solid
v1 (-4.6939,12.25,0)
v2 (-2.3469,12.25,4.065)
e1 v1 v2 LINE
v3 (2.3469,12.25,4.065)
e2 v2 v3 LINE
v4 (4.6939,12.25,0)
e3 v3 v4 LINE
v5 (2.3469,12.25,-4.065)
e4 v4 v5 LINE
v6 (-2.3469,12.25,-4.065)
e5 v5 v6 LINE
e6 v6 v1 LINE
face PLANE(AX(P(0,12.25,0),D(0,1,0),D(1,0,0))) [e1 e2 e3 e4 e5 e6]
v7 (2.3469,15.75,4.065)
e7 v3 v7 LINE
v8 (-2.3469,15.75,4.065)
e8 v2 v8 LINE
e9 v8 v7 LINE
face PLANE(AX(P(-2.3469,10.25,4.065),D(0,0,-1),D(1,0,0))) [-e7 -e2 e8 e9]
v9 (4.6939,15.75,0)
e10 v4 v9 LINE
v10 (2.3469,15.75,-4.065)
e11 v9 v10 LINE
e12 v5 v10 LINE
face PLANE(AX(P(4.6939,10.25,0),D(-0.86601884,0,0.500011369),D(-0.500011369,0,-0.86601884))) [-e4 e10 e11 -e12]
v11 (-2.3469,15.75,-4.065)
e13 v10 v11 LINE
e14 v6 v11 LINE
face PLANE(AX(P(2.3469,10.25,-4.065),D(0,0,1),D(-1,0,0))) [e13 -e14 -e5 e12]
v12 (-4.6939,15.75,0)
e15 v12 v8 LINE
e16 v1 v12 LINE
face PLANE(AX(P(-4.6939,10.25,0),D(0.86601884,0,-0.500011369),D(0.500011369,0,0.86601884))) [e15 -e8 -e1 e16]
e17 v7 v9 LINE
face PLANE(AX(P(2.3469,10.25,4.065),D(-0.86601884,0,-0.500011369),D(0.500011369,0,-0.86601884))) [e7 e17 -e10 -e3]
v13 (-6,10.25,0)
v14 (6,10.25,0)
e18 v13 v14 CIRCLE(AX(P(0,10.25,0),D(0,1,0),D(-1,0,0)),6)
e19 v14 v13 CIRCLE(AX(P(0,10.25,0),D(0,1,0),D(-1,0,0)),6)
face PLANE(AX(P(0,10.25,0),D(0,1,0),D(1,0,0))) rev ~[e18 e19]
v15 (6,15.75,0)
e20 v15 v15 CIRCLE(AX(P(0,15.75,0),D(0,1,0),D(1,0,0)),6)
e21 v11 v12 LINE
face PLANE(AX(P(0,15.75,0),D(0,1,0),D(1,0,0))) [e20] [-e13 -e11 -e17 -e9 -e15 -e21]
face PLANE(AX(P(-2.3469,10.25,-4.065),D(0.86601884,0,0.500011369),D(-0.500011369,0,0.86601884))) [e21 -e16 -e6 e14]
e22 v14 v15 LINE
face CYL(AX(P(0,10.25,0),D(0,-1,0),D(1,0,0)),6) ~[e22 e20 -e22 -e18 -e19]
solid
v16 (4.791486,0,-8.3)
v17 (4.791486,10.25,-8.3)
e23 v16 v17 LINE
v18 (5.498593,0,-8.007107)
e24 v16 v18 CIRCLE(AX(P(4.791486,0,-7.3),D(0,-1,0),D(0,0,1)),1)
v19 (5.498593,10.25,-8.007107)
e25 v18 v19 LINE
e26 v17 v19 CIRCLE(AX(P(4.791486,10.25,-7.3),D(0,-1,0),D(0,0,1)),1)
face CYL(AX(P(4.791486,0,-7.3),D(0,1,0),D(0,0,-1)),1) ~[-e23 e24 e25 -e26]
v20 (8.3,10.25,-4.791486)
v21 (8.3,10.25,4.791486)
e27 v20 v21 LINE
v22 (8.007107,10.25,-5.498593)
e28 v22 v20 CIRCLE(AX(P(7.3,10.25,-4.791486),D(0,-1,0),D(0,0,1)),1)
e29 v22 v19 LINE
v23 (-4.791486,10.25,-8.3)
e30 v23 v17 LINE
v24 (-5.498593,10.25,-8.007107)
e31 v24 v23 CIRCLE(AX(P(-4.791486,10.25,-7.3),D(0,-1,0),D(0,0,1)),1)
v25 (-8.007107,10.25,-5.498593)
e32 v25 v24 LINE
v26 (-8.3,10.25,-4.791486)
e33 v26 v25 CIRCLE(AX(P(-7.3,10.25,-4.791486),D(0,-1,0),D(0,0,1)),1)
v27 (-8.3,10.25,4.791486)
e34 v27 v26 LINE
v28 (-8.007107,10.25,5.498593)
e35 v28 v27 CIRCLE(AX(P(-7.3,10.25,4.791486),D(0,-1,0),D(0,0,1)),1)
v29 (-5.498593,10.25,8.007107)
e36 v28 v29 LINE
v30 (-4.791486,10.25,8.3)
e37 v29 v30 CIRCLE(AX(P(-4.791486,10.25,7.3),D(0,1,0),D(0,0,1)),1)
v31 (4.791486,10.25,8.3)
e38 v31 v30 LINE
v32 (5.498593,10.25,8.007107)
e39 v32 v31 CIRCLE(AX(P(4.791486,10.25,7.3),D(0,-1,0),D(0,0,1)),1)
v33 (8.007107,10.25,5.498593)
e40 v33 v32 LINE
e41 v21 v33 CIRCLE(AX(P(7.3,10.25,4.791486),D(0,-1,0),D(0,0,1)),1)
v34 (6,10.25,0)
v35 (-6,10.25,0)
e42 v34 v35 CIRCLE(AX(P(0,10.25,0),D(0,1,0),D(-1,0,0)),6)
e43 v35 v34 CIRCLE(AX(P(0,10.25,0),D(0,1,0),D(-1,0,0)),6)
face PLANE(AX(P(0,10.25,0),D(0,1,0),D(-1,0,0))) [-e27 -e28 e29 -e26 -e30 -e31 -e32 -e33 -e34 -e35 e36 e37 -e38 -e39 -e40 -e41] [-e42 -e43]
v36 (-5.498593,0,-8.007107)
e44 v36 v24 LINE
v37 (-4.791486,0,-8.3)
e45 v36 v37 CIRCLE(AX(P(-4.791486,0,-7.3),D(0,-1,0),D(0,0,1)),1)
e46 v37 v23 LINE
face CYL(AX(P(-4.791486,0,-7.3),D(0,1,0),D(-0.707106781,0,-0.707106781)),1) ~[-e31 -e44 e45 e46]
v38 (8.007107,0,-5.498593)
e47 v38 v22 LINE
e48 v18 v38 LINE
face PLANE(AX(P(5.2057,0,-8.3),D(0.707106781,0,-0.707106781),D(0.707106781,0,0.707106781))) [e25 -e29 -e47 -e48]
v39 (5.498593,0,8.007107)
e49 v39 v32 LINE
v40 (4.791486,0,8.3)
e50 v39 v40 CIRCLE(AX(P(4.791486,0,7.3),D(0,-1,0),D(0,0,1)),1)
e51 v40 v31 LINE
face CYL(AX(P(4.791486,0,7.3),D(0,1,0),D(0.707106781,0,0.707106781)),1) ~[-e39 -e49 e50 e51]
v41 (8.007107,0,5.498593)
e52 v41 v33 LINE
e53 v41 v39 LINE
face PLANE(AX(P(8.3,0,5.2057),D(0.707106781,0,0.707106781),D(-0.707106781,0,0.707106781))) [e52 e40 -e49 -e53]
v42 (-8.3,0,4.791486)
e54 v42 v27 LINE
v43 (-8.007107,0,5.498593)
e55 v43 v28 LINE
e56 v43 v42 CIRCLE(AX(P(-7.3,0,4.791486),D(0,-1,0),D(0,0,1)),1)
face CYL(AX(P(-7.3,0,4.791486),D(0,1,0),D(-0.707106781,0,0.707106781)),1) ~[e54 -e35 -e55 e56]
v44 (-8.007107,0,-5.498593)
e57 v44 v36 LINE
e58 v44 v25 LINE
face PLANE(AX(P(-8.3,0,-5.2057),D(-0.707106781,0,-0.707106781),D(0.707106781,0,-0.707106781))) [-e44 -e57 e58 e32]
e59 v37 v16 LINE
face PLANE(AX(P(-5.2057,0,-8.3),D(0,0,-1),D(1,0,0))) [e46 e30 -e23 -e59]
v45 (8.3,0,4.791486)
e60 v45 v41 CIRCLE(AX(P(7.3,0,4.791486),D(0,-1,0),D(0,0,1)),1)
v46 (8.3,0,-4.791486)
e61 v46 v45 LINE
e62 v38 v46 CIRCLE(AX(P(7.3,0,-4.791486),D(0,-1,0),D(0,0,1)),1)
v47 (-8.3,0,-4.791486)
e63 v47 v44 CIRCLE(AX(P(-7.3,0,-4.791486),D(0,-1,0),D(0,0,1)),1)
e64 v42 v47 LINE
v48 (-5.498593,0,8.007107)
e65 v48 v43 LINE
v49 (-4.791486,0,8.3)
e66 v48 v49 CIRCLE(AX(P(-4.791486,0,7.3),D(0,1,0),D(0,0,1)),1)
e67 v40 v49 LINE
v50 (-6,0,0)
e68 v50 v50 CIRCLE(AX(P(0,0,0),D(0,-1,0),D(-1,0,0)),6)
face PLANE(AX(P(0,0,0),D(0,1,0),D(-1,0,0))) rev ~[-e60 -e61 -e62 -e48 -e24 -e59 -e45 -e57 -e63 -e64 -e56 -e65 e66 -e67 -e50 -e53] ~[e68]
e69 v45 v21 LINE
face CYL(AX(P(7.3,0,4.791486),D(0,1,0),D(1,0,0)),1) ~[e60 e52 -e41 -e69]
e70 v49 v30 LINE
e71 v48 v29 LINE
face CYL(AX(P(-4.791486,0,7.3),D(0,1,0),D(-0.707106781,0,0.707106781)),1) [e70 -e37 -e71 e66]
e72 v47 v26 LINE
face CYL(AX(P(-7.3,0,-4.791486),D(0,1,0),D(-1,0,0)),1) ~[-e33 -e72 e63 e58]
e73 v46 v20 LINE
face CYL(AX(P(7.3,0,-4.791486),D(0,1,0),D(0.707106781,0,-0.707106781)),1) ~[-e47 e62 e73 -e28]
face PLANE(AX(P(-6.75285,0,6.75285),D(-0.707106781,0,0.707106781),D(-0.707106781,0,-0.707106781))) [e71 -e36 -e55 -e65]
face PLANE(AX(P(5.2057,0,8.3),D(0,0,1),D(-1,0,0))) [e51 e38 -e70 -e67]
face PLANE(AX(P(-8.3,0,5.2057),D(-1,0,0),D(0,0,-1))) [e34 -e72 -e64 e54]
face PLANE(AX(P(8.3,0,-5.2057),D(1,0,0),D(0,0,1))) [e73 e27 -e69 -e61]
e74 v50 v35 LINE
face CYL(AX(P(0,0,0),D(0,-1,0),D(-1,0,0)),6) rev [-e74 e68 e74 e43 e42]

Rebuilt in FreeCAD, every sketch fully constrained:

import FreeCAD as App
import Part
import Sketcher
from FreeCAD import Vector
Q = App.Units.Quantity


def edges_at(feature, points):
    """Names of the edges that pass closest to the given points."""
    edges = feature.Shape.Edges
    near = lambda p: min(range(len(edges)), key=lambda i: edges[i].distToShape(Part.Vertex(*p))[0])
    return sorted({f"Edge{near(p) + 1}" for p in points})


def add_polygon(sketch, points):
    """Adds a closed chain of lines whose ends are joined by coincident constraints."""
    first, n = sketch.GeometryCount, len(points)
    for a, b in zip(points, points[1:] + points[:1]):
        sketch.addGeometry(Part.LineSegment(App.Vector(*a, 0), App.Vector(*b, 0)), False)
    for i in range(n):
        sketch.addConstraint(Sketcher.Constraint("Coincident", first + i, 2, first + (i + 1) % n, 1))

doc = App.newDocument("Part")
params = doc.addObject("Spreadsheet::Sheet", "Params")
for row, (alias, value) in enumerate([
    ("sketch1_diameter", "12 mm"),
    ("pad1_length", "10.25 mm"),
    ("fillet_radius", "1 mm"),
    ("sketch2_diameter", "12 mm"),
    ("pad2_length", "5.5 mm"),
    ("pad3_length", "2 mm"),
], start=1):
    params.set(f"A{row}", alias)
    params.set(f"B{row}", "=" + value)
    params.setAlias(f"B{row}", alias)

body = doc.addObject("PartDesign::Body", "Body")
body.AllowCompound = True

sketch1 = doc.addObject("Sketcher::SketchObject", "Sketch")
body.addObject(sketch1)
sketch1.AttachmentSupport = (doc.XZ_Plane, [""])
sketch1.MapMode = "FlatFace"
add_polygon(sketch1, [(-8.3, 5.2), (-5.2, 8.3), (5.2, 8.3), (8.3, 5.2), (8.3, -5.2), (5.2, -8.3), (-5.2, -8.3), (-8.3, -5.2)])
sketch1.addGeometry(Part.Circle(Vector(0, 0, 0), Vector(0, 0, 1), 6), False)
sketch1.addConstraint([
    Sketcher.Constraint("Horizontal", 1),
    Sketcher.Constraint("Vertical", 3),
    Sketcher.Constraint("Horizontal", 5),
    Sketcher.Constraint("Vertical", 7),
    Sketcher.Constraint("Coincident", 8, 3, -1, 1),
    Sketcher.Constraint("Symmetric", 0, 2, 4, 2, -1, 1),
    Sketcher.Constraint("Symmetric", 2, 2, 6, 2, -1, 1),
    Sketcher.Constraint("Perpendicular", 0, 2),
    Sketcher.Constraint("Perpendicular", 2, 4),
    Sketcher.Constraint("Perpendicular", 4, 6),
    Sketcher.Constraint("Horizontal", 3, 2, 6, 2),
    Sketcher.Constraint("Vertical", 1, 2, 4, 2),
    Sketcher.Constraint("Equal", 5, 3),
    Sketcher.Constraint("Diameter", 8, Q("12 mm")),
    Sketcher.Constraint("DistanceY", -1, 1, 0, 2, Q("8.3 mm")),
    Sketcher.Constraint("Distance", 0, Q("4.376 mm")),
])
sketch1.setExpression("Constraints[21]", "Params.sketch1_diameter")
pad1 = doc.addObject("PartDesign::Pad", "Pad")
body.addObject(pad1)
pad1.Profile = sketch1
pad1.setExpression("Length", "Params.pad1_length")
pad1.Reversed = True
doc.recompute()

fillet = doc.addObject("PartDesign::Fillet", "Fillet")
body.addObject(fillet)
fillet.Base = (pad1, edges_at(pad1, [
    (-5.206, 5.125, 8.3),
    (5.206, 5.125, 8.3),
    (8.3, 5.125, 5.206),
    (8.3, 5.125, -5.206),
    (5.206, 5.125, -8.3),
    (-5.206, 5.125, -8.3),
    (-8.3, 5.125, 5.206),
    (-8.3, 5.125, -5.206),
]))
fillet.setExpression("Radius", "Params.fillet_radius")

sketch2 = doc.addObject("Sketcher::SketchObject", "Sketch001")
body.addObject(sketch2)
sketch2.AttachmentSupport = (doc.XZ_Plane, [""])
sketch2.MapMode = "FlatFace"
sketch2.AttachmentOffset = App.Placement(Vector(0, 0, -10.25), App.Rotation())
sketch2.addGeometry(Part.Circle(Vector(0, 0, 0), Vector(0, 0, 1), 6), False)
add_polygon(sketch2, [(4.7, 0), (2.3, 4.1), (-2.3, 4.1), (-4.7, 0), (-2.3, -4.1), (2.3, -4.1)])
sketch2.addConstraint([
    Sketcher.Constraint("Horizontal", 2),
    Sketcher.Constraint("Horizontal", 5),
    Sketcher.Constraint("Coincident", 0, 3, -1, 1),
    Sketcher.Constraint("Symmetric", 1, 2, 4, 2, -1, 1),
    Sketcher.Constraint("Symmetric", 3, 2, 6, 2, -1, 1),
    Sketcher.Constraint("PointOnObject", 3, 2, -1),
    Sketcher.Constraint("Parallel", 3, 6),
    Sketcher.Constraint("Vertical", 2, 2, 4, 2),
    Sketcher.Constraint("Diameter", 0, Q("12 mm")),
    Sketcher.Constraint("Angle", 1, Q("120.0008 deg")),
    Sketcher.Constraint("DistanceY", 4, 2, 2, 2, Q("8.13 mm")),
    Sketcher.Constraint("DistanceX", 2, 2, 2, 1, Q("4.6938 mm")),
])
sketch2.setExpression("Constraints[14]", "Params.sketch2_diameter")
pad2 = doc.addObject("PartDesign::Pad", "Pad001")
body.addObject(pad2)
pad2.Profile = sketch2
pad2.setExpression("Length", "Params.pad2_length")
pad2.Reversed = True

sketch3 = doc.addObject("Sketcher::SketchObject", "Sketch002")
body.addObject(sketch3)
sketch3.AttachmentSupport = (doc.XZ_Plane, [""])
sketch3.MapMode = "FlatFace"
sketch3.AttachmentOffset = App.Placement(Vector(0, 0, -10.25), App.Rotation())
add_polygon(sketch3, [(-2.3, 4.1), (2.3, 4.1), (4.7, 0), (2.3, -4.1), (-2.3, -4.1), (-4.7, 0)])
sketch3.addConstraint([
    Sketcher.Constraint("Horizontal", 0),
    Sketcher.Constraint("Horizontal", 3),
    Sketcher.Constraint("Symmetric", 0, 2, 3, 2, -1, 1),
    Sketcher.Constraint("Symmetric", 1, 2, 4, 2, -1, 1),
    Sketcher.Constraint("PointOnObject", 1, 2, -1),
    Sketcher.Constraint("Parallel", 2, 5),
    Sketcher.Constraint("Vertical", 0, 2, 2, 2),
    Sketcher.Constraint("Angle", 1, Q("-59.9992 deg")),
    Sketcher.Constraint("DistanceY", 2, 2, 0, 2, Q("8.13 mm")),
    Sketcher.Constraint("DistanceX", 0, 1, 0, 2, Q("4.6938 mm")),
])
pad3 = doc.addObject("PartDesign::Pad", "Pad002")
body.addObject(pad3)
pad3.Profile = sketch3
pad3.setExpression("Length", "Params.pad3_length")
pad3.Reversed = True

doc.recompute()
